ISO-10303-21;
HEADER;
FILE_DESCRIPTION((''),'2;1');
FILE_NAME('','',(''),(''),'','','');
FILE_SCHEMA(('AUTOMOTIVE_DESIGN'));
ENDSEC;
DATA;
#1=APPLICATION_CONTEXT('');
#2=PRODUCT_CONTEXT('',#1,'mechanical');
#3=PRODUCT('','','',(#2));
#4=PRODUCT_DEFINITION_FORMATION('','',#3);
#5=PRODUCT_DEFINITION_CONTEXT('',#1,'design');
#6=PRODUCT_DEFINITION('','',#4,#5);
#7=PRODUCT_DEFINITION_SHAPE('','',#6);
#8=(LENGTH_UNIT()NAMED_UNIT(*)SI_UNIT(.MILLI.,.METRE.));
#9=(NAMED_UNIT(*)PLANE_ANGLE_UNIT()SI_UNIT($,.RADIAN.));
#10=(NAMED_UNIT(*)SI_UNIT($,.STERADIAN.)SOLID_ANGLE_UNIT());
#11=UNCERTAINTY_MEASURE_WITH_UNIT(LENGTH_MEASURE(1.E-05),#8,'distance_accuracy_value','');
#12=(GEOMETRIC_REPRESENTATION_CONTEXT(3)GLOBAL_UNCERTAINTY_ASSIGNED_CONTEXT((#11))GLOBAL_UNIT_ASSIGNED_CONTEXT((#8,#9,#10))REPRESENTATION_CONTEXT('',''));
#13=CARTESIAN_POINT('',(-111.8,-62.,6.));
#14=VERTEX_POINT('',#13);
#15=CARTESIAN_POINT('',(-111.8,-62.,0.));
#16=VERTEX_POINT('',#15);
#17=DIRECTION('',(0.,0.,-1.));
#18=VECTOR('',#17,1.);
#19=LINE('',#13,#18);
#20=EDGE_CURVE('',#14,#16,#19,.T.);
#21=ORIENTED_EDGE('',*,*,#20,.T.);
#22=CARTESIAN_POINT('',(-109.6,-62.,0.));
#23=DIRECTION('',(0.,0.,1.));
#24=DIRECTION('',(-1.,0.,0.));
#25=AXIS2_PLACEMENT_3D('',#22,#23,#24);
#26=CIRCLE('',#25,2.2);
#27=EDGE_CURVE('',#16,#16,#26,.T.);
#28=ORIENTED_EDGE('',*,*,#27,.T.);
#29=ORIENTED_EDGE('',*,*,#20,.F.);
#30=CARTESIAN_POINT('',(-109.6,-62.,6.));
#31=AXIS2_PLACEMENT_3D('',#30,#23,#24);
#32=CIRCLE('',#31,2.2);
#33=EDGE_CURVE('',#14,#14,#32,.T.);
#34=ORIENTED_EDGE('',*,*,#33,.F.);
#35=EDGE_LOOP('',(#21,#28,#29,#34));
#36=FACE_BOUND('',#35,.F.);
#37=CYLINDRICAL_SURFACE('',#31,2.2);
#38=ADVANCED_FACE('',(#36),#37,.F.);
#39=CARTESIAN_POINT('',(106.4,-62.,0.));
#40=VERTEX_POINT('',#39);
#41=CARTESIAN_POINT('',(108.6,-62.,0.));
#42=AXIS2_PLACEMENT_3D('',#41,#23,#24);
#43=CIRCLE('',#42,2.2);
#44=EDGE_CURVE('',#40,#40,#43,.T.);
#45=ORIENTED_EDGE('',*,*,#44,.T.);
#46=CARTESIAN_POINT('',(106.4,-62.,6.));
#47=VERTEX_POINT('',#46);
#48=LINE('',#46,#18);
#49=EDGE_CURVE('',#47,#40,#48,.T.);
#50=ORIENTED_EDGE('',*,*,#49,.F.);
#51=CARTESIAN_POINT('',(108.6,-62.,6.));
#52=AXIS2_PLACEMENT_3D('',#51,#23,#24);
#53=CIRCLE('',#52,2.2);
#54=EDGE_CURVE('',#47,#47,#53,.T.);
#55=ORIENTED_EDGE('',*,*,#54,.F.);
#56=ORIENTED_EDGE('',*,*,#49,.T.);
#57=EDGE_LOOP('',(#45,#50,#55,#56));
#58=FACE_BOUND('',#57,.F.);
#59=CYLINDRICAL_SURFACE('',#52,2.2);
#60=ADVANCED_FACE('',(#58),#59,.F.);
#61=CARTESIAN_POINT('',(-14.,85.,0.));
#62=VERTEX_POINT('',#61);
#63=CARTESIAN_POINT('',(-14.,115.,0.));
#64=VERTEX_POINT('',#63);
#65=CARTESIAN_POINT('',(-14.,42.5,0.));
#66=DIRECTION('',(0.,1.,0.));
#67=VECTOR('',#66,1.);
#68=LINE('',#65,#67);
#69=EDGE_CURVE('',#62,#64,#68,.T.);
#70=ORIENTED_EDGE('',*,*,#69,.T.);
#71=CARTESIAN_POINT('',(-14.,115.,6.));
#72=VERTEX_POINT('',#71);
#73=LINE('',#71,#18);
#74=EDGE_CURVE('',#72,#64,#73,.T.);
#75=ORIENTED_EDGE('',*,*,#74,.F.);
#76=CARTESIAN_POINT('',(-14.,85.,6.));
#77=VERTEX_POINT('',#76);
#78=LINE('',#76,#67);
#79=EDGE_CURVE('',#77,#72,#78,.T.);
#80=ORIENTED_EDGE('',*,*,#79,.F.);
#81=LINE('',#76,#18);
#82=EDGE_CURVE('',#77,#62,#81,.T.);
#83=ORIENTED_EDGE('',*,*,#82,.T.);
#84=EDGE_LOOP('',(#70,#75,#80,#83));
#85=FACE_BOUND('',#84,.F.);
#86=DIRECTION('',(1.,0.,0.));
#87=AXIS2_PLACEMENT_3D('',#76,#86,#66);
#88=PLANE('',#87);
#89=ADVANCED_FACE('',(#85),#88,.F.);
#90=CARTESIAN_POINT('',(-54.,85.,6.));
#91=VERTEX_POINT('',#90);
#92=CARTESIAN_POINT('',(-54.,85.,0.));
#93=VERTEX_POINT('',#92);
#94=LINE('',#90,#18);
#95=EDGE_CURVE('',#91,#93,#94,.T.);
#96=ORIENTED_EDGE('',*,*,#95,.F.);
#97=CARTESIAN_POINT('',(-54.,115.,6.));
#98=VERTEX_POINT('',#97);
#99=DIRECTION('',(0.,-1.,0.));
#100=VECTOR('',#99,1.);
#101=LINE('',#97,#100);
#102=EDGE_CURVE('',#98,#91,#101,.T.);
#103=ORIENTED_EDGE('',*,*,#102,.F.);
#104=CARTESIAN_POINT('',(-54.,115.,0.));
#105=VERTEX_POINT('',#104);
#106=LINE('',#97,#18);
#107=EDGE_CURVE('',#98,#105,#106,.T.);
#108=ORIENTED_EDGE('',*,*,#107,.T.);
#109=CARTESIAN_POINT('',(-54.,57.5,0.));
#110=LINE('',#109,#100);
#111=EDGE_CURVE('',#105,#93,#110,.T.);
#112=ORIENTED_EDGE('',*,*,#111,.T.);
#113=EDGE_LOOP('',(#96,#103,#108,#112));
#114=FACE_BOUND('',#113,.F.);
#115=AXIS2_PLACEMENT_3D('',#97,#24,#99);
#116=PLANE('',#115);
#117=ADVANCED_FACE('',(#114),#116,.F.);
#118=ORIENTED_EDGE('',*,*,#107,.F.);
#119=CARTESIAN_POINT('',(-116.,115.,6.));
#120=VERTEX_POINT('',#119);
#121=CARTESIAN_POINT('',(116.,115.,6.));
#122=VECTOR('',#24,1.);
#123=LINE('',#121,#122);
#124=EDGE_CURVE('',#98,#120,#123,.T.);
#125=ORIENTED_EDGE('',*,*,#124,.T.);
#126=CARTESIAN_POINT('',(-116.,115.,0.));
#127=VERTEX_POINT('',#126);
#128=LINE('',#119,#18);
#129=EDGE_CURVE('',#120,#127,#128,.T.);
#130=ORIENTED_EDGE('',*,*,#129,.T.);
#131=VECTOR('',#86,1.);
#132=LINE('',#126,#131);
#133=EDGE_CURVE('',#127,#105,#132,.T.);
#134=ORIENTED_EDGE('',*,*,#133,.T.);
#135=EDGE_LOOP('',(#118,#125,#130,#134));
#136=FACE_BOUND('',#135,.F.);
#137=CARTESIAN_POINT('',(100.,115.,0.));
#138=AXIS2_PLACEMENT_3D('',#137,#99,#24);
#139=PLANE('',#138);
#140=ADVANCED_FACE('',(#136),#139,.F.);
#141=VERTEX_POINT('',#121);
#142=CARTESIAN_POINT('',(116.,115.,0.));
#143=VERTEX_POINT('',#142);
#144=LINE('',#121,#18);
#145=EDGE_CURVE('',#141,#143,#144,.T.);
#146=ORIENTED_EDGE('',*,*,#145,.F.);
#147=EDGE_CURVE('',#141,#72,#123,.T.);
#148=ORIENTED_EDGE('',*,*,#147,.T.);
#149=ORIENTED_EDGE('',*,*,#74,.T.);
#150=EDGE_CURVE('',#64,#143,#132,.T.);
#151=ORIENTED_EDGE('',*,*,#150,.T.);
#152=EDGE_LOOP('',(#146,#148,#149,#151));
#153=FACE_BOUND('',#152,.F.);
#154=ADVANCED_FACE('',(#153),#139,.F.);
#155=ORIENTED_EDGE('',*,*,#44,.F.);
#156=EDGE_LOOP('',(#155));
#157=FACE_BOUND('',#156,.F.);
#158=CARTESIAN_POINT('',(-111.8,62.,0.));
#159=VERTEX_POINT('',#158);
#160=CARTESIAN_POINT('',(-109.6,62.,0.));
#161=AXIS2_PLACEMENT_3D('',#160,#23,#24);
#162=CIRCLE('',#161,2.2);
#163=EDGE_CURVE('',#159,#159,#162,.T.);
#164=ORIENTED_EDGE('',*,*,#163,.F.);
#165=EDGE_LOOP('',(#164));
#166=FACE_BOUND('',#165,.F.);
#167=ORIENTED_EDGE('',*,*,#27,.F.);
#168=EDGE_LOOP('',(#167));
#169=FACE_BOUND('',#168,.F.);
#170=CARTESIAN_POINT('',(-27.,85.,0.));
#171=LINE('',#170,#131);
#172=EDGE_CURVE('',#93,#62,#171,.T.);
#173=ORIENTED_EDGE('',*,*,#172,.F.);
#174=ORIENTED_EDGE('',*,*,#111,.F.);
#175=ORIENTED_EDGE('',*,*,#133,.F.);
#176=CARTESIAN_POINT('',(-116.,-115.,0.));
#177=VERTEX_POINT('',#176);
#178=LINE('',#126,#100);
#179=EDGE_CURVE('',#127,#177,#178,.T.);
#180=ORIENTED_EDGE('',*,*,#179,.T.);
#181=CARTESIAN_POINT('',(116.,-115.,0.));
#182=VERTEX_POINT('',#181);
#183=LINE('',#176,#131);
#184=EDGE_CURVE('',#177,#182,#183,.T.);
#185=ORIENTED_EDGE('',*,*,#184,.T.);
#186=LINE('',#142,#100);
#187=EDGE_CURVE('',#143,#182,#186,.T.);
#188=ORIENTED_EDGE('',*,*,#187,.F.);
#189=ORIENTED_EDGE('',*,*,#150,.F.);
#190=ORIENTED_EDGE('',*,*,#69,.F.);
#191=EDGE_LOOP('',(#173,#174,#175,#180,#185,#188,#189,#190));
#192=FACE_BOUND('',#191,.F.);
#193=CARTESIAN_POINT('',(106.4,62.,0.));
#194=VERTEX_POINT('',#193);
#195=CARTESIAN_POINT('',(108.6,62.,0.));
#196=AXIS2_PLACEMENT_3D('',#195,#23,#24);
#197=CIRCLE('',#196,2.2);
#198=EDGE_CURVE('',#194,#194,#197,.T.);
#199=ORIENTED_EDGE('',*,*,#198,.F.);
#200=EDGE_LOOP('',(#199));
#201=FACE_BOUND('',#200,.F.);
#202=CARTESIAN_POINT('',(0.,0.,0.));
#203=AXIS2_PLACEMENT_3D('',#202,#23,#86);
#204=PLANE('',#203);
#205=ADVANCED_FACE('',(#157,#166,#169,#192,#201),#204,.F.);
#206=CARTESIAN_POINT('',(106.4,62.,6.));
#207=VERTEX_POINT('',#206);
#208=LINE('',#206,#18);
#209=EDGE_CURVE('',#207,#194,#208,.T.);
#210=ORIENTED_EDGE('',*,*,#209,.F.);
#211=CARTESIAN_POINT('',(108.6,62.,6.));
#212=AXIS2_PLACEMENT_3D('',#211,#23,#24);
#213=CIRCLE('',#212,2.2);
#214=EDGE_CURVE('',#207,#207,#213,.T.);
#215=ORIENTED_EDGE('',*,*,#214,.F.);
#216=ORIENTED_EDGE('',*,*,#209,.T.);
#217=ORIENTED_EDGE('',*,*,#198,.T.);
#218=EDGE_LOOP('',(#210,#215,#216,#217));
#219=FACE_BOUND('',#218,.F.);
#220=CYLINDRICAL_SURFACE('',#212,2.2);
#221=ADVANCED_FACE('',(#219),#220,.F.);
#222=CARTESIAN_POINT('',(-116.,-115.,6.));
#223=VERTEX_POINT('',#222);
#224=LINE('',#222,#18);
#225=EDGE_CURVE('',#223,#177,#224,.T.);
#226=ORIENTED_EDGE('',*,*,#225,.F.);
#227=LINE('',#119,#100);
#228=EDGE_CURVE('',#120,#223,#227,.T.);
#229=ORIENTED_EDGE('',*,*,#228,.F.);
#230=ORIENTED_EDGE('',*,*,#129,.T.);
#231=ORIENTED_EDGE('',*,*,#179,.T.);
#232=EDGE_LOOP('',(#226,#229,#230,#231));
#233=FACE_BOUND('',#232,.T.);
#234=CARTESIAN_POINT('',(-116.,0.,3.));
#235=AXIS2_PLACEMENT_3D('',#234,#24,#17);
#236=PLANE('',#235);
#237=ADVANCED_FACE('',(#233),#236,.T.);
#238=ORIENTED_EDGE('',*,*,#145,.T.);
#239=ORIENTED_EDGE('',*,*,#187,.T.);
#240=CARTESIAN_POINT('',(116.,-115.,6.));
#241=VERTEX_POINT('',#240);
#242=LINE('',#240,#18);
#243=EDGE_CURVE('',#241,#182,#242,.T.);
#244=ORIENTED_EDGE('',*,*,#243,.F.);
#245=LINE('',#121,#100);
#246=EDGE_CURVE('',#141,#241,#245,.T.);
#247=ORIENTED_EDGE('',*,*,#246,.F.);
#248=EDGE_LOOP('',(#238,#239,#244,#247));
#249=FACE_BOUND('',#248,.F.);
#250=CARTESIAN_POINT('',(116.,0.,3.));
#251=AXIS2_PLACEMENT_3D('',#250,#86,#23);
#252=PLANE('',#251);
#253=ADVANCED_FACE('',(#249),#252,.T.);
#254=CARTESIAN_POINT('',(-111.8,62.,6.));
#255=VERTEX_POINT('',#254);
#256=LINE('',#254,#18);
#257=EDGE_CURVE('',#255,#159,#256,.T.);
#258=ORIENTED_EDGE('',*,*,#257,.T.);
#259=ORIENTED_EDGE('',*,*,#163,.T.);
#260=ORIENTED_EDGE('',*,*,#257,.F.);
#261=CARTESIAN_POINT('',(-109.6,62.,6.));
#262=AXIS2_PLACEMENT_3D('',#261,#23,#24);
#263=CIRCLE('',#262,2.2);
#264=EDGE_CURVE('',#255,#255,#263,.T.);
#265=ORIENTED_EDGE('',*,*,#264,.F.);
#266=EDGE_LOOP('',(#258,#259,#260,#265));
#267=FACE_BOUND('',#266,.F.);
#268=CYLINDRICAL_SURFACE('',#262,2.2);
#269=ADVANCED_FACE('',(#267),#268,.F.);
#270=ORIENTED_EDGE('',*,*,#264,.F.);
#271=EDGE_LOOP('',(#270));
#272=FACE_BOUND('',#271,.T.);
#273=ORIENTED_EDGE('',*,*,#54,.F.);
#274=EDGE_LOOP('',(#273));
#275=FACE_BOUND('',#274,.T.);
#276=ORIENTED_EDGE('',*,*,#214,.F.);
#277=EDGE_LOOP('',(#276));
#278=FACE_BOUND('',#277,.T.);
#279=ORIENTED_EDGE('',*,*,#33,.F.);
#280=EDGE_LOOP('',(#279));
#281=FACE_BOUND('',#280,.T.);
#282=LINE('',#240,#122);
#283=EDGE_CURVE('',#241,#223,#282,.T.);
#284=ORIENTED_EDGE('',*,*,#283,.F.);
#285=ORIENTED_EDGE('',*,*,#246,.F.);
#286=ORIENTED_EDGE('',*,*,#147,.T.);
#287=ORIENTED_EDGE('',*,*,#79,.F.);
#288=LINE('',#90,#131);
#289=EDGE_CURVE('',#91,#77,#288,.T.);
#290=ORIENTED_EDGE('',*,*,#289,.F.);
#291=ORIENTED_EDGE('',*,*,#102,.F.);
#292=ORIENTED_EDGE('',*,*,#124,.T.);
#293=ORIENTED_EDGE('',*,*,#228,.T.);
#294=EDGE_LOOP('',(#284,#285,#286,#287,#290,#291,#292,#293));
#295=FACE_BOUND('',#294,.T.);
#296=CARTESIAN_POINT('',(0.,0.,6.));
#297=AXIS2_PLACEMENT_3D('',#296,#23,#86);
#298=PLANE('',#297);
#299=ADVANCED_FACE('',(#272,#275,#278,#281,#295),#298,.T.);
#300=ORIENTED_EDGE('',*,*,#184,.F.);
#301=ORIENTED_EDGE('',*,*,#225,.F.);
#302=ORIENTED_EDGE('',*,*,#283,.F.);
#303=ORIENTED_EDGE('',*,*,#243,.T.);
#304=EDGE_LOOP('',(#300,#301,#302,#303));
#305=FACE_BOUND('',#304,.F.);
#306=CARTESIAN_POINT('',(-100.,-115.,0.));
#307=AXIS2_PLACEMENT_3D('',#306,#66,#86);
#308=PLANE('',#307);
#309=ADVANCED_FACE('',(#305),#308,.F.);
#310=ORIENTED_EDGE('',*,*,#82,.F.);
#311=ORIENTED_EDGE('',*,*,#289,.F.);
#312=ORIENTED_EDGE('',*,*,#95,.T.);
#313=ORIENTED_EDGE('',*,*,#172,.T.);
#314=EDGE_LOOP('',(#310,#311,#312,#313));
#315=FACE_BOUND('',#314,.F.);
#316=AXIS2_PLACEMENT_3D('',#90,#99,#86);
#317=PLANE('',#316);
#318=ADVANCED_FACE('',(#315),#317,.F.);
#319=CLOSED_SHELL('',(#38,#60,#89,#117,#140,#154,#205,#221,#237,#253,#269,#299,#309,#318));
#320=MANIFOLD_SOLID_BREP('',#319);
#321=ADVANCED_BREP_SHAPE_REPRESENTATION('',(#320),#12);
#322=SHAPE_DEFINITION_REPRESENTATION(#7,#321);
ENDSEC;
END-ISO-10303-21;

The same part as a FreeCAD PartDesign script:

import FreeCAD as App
import Part
import Sketcher

V = App.Vector

doc = App.newDocument("Part")
params = doc.addObject("Spreadsheet::Sheet", "Params")
for row, (alias, value) in enumerate([
    ("sketch1_height", "230 mm"),
    ("pad1_length", "6 mm"),
    ("sketch2_width", "230 mm"),
    ("sketch2_height", "6 mm"),
    ("pad2_length", "16 mm"),
    ("sketch3_width", "40 mm"),
    ("sketch3_height", "30 mm"),
    ("sketch4_diameter", "4.4 mm"),
], start=1):
    params.set(f"A{row}", alias)
    params.set(f"B{row}", "=" + value)
    params.setAlias(f"B{row}", alias)

body = doc.addObject("PartDesign::Body", "Body")

sketch1 = body.newObject("Sketcher::SketchObject", "Sketch")
sketch1.AttachmentSupport = (doc.getObject("XY_Plane"), [""])
sketch1.MapMode = "FlatFace"
sketch1.addGeometry([
    Part.LineSegment(V(-100, 115, 0), V(-100, -115, 0)),
    Part.LineSegment(V(-100, -115, 0), V(100, -115, 0)),
    Part.LineSegment(V(100, -115, 0), V(100, 115, 0)),
    Part.LineSegment(V(100, 115, 0), V(-100, 115, 0)),
], False)
sketch1.addConstraint([
    Sketcher.Constraint("Coincident", 0, 2, 1, 1),
    Sketcher.Constraint("Coincident", 1, 2, 2, 1),
    Sketcher.Constraint("Coincident", 2, 2, 3, 1),
    Sketcher.Constraint("Coincident", 3, 2, 0, 1),
    Sketcher.Constraint("Vertical", 0),
    Sketcher.Constraint("Horizontal", 1),
    Sketcher.Constraint("Vertical", 2),
    Sketcher.Constraint("Horizontal", 3),
    Sketcher.Constraint("Symmetric", 0, 2, 2, 2, -1, 1),
    Sketcher.Constraint("DistanceX", 0, 2, -1, 1, 100.0),
    Sketcher.Constraint("DistanceY", 0, 2, 0, 1, 230.0),
])
sketch1.setExpression("Constraints[10]", "Params.sketch1_height")
pad1 = body.newObject("PartDesign::Pad", "Pad")
pad1.Profile = sketch1
pad1.setExpression("Length", "Params.pad1_length")

sketch2 = body.newObject("Sketcher::SketchObject", "Sketch001")
sketch2.AttachmentSupport = (doc.getObject("YZ_Plane"), [""])
sketch2.MapMode = "FlatFace"
sketch2.AttachmentOffset = App.Placement(V(0, 0, -100), App.Rotation())
sketch2.addGeometry([
    Part.LineSegment(V(115, 6, 0), V(115, 0, 0)),
    Part.LineSegment(V(115, 0, 0), V(-115, 0, 0)),
    Part.LineSegment(V(-115, 0, 0), V(-115, 6, 0)),
    Part.LineSegment(V(-115, 6, 0), V(115, 6, 0)),
], False)
sketch2.addConstraint([
    Sketcher.Constraint("Coincident", 0, 2, 1, 1),
    Sketcher.Constraint("Coincident", 1, 2, 2, 1),
    Sketcher.Constraint("Coincident", 2, 2, 3, 1),
    Sketcher.Constraint("Coincident", 3, 2, 0, 1),
    Sketcher.Constraint("Vertical", 0),
    Sketcher.Constraint("Horizontal", 1),
    Sketcher.Constraint("Vertical", 2),
    Sketcher.Constraint("Horizontal", 3),
    Sketcher.Constraint("Symmetric", 0, 2, 1, 2, -1, 1),
    Sketcher.Constraint("DistanceX", 1, 2, 1, 1, 230.0),
    Sketcher.Constraint("DistanceY", 0, 2, 0, 1, 6.0),
])
sketch2.setExpression("Constraints[9]", "Params.sketch2_width")
sketch2.setExpression("Constraints[10]", "Params.sketch2_height")
pad2 = body.newObject("PartDesign::Pad", "Pad001")
pad2.Profile = sketch2
pad2.setExpression("Length", "Params.pad2_length")
pad2.Reversed = True
doc.recompute()

mirrored = body.newObject("PartDesign::Mirrored", "Mirrored")
mirrored.Originals = [pad2]
mirrored.MirrorPlane = (doc.getObject("YZ_Plane"), [""])
body.Tip = mirrored

sketch3 = body.newObject("Sketcher::SketchObject", "Sketch002")
sketch3.AttachmentSupport = (doc.getObject("XY_Plane"), [""])
sketch3.MapMode = "FlatFace"
sketch3.AttachmentOffset = App.Placement(V(0, 0, 6), App.Rotation())
sketch3.addGeometry([
    Part.LineSegment(V(-14, 115, 0), V(-54, 115, 0)),
    Part.LineSegment(V(-54, 115, 0), V(-54, 85, 0)),
    Part.LineSegment(V(-54, 85, 0), V(-14, 85, 0)),
    Part.LineSegment(V(-14, 85, 0), V(-14, 115, 0)),
], False)
sketch3.addConstraint([
    Sketcher.Constraint("Coincident", 0, 2, 1, 1),
    Sketcher.Constraint("Coincident", 1, 2, 2, 1),
    Sketcher.Constraint("Coincident", 2, 2, 3, 1),
    Sketcher.Constraint("Coincident", 3, 2, 0, 1),
    Sketcher.Constraint("Horizontal", 0),
    Sketcher.Constraint("Vertical", 1),
    Sketcher.Constraint("Horizontal", 2),
    Sketcher.Constraint("Vertical", 3),
    Sketcher.Constraint("DistanceX", 0, 2, -1, 1, 54.0),
    Sketcher.Constraint("DistanceX", 0, 2, 0, 1, 40.0),
    Sketcher.Constraint("DistanceY", 1, 2, 1, 1, 30.0),
    Sketcher.Constraint("DistanceY", -1, 1, 0, 2, 115.0),
])
sketch3.setExpression("Constraints[9]", "Params.sketch3_width")
sketch3.setExpression("Constraints[10]", "Params.sketch3_height")
pocket1 = body.newObject("PartDesign::Pocket", "Pocket")
pocket1.Profile = sketch3
pocket1.Type = "ThroughAll"

sketch4 = body.newObject("Sketcher::SketchObject", "Sketch003")
sketch4.AttachmentSupport = (doc.getObject("XY_Plane"), [""])
sketch4.MapMode = "FlatFace"
sketch4.AttachmentOffset = App.Placement(V(0, 0, 6), App.Rotation())
sketch4.addGeometry([
    Part.Circle(V(108.6, -62, 0), V(0, 0, 1), 2.2),
    Part.Circle(V(108.6, 62, 0), V(0, 0, 1), 2.2),
    Part.Circle(V(-109.6, 62, 0), V(0, 0, 1), 2.2),
    Part.Circle(V(-109.6, -62, 0), V(0, 0, 1), 2.2),
], False)
sketch4.addConstraint([
    Sketcher.Constraint("Equal", 0, 1),
    Sketcher.Constraint("Equal", 1, 2),
    Sketcher.Constraint("Equal", 2, 3),
    Sketcher.Constraint("Symmetric", 0, 3, 1, 3, -1),
    Sketcher.Constraint("Symmetric", 2, 3, 3, 3, -1),
    Sketcher.Constraint("Horizontal", 1, 3, 2, 3),
    Sketcher.Constraint("Diameter", 0, 4.4),
    Sketcher.Constraint("DistanceY", 0, 3, -1, 1, 62.0),
    Sketcher.Constraint("DistanceX", -1, 1, 0, 3, 108.6),
    Sketcher.Constraint("DistanceX", 2, 3, -1, 1, 109.6),
])
sketch4.setExpression("Constraints[6]", "Params.sketch4_diameter")
pocket2 = body.newObject("PartDesign::Pocket", "Pocket001")
pocket2.Profile = sketch4
pocket2.Type = "ThroughAll"

doc.recompute()
